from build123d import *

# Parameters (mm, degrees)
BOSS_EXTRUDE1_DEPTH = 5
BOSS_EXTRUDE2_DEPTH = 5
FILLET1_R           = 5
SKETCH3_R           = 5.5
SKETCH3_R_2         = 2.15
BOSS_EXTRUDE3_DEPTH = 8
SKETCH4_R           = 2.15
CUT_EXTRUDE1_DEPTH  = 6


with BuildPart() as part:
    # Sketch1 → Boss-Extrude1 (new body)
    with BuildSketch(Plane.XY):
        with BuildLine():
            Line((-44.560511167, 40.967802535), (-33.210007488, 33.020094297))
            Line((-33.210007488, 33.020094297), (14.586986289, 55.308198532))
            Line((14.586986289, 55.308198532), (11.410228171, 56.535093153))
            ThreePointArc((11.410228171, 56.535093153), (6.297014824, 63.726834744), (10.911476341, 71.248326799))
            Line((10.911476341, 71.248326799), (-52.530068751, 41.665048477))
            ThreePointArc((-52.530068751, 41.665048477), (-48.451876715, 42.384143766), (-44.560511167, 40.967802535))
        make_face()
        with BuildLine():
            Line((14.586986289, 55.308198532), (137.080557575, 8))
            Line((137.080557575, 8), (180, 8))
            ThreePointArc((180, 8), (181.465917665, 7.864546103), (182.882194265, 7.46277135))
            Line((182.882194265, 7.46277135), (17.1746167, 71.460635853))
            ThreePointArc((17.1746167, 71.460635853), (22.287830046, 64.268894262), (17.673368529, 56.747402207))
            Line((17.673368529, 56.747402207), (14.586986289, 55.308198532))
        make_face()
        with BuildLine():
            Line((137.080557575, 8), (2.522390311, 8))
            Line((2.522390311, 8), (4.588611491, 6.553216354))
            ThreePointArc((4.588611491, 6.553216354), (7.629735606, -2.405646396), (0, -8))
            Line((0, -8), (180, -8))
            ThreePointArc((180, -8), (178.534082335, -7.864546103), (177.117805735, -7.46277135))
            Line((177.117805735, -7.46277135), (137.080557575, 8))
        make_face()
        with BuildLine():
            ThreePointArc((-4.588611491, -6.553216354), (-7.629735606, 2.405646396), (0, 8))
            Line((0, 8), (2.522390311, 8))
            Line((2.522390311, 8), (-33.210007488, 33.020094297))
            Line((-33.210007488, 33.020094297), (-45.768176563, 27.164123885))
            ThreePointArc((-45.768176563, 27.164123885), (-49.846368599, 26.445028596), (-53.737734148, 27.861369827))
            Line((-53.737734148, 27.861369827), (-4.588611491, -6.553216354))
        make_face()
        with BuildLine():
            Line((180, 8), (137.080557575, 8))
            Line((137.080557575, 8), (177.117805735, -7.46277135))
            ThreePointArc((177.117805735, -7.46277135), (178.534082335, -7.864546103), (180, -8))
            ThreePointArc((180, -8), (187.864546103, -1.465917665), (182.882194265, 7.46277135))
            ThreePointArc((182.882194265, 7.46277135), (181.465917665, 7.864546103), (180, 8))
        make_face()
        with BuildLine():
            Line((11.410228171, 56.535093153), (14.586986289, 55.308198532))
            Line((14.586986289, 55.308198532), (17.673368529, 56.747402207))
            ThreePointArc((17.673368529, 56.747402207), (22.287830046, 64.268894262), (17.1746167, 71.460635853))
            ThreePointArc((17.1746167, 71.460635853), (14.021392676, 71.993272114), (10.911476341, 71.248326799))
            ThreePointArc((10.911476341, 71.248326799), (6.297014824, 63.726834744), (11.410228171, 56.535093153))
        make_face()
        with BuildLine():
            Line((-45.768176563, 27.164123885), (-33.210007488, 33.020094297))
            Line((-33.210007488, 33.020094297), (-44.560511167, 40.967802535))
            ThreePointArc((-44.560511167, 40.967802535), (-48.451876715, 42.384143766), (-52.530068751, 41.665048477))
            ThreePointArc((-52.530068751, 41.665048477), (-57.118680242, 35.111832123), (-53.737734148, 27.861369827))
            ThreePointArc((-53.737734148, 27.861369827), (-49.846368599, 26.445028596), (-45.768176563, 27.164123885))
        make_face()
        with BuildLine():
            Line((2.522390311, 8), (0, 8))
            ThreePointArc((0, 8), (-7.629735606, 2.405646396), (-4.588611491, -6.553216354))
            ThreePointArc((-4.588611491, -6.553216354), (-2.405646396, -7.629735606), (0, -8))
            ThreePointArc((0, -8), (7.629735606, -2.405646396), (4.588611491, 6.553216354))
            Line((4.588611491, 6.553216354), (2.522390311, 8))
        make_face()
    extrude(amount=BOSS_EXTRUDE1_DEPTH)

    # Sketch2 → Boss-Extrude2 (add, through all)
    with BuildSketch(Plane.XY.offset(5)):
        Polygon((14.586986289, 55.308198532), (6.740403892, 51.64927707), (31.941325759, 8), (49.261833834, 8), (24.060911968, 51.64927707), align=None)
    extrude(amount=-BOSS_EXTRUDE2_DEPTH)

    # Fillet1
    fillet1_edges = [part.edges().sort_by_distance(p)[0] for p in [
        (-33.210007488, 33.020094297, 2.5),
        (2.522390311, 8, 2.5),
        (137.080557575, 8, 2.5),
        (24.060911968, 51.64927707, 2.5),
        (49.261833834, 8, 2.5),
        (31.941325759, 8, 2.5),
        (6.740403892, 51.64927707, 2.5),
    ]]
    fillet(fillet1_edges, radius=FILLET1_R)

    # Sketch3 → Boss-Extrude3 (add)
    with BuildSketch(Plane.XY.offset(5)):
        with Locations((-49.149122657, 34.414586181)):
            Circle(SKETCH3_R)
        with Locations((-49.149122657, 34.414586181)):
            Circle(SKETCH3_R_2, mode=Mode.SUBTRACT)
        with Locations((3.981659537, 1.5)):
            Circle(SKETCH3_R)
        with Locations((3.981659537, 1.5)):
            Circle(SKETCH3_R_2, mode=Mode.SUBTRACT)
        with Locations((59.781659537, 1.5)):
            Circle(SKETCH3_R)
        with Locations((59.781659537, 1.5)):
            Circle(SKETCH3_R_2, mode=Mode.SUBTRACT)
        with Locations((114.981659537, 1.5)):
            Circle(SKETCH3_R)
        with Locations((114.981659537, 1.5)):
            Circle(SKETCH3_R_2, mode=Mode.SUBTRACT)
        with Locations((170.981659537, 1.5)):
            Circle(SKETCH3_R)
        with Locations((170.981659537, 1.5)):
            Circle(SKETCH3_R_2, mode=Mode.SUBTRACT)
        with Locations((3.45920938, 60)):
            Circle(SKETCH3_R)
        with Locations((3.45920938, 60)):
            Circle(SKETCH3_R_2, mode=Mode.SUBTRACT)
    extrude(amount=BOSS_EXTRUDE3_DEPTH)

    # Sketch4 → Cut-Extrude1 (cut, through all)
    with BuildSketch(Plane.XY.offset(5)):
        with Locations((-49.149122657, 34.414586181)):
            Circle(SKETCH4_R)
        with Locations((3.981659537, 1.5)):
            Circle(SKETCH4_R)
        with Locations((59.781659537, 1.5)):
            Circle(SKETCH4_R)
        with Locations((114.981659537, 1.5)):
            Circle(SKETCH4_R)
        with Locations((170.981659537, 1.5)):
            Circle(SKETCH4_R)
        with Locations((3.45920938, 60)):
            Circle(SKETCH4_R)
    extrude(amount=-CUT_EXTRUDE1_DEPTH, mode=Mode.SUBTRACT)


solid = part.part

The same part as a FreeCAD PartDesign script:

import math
import FreeCAD as App
import Part
import Sketcher
Q = App.Units.Quantity


def edges_at(feature, points):
    """Names of the edges that pass closest to the given points."""
    edges = feature.Shape.Edges
    near = lambda p: min(range(len(edges)), key=lambda i: edges[i].distToShape(Part.Vertex(*p))[0])
    return sorted({f"Edge{near(p) + 1}" for p in points})


def add_polygon(sketch, points):
    """Adds a closed chain of lines whose ends are joined by coincident constraints."""
    first, n = sketch.GeometryCount, len(points)
    for a, b in zip(points, points[1:] + points[:1]):
        sketch.addGeometry(Part.LineSegment(App.Vector(*a, 0), App.Vector(*b, 0)), False)
    for i in range(n):
        sketch.addConstraint(Sketcher.Constraint("Coincident", first + i, 2, first + (i + 1) % n, 1))

doc = App.newDocument("Part")
body = doc.addObject("PartDesign::Body", "Body")

sketch1 = body.newObject("Sketcher::SketchObject", "Sketch")
sketch1.AttachmentSupport = (doc.getObject("XY_Plane"), [""])
sketch1.MapMode = "FlatFace"
sketch1.addGeometry(Part.LineSegment(App.Vector(-53.7, 27.9, 0), App.Vector(-4.6, -6.6, 0)), False)
sketch1.addGeometry(Part.ArcOfCircle(Part.Circle(App.Vector(0, 0, 0), App.Vector(0, 0, 1), 8), math.radians(-125), math.radians(-90)), False)
sketch1.addGeometry(Part.LineSegment(App.Vector(0, -8, 0), App.Vector(180, -8, 0)), False)
sketch1.addGeometry(Part.ArcOfCircle(Part.Circle(App.Vector(180, 0, 0), App.Vector(0, 0, 1), 8), math.radians(-90), math.radians(69)), False)
sketch1.addGeometry(Part.LineSegment(App.Vector(182.9, 7.5, 0), App.Vector(17.2, 71.5, 0)), False)
sketch1.addGeometry(Part.ArcOfCircle(Part.Circle(App.Vector(14.3, 64, 0), App.Vector(0, 0, 1), 8), math.radians(69), math.radians(115)), False)
sketch1.addGeometry(Part.LineSegment(App.Vector(10.9, 71.2, 0), App.Vector(-52.5, 41.7, 0)), False)
sketch1.addGeometry(Part.ArcOfCircle(Part.Circle(App.Vector(-49.1, 34.4, 0), App.Vector(0, 0, 1), 8), math.radians(115), math.radians(235)), False)
add_polygon(sketch1, [(137.1, 8), (2.5, 8), (-33.2, 33), (14.6, 55.3)])
sketch1.addConstraint(Sketcher.Constraint("Tangent", 0, 2, 1, 1))
sketch1.addConstraint(Sketcher.Constraint("Tangent", 1, 2, 2, 1))
sketch1.addConstraint(Sketcher.Constraint("Tangent", 2, 2, 3, 1))
sketch1.addConstraint(Sketcher.Constraint("Tangent", 3, 2, 4, 1))
sketch1.addConstraint(Sketcher.Constraint("Tangent", 4, 2, 5, 1))
sketch1.addConstraint(Sketcher.Constraint("Tangent", 5, 2, 6, 1))
sketch1.addConstraint(Sketcher.Constraint("Tangent", 6, 2, 7, 1))
sketch1.addConstraint(Sketcher.Constraint("Tangent", 7, 2, 0, 1))
sketch1.addConstraint(Sketcher.Constraint("Horizontal", 2))
sketch1.addConstraint(Sketcher.Constraint("Horizontal", 8))
sketch1.addConstraint(Sketcher.Constraint("Coincident", 1, 3, -1, 1))
sketch1.addConstraint(Sketcher.Constraint("Equal", 1, 3))
sketch1.addConstraint(Sketcher.Constraint("Equal", 3, 5))
sketch1.addConstraint(Sketcher.Constraint("Equal", 5, 7))
sketch1.addConstraint(Sketcher.Constraint("Parallel", 0, 9))
sketch1.addConstraint(Sketcher.Constraint("Parallel", 6, 10))
sketch1.addConstraint(Sketcher.Constraint("Parallel", 4, 11))
sketch1.addConstraint(Sketcher.Constraint("Radius", 1, Q("8 mm")))
sketch1.addConstraint(Sketcher.Constraint("DistanceX", 2, 1, 2, 2, Q("180 mm")))
sketch1.addConstraint(Sketcher.Constraint("Angle", 0, Q("-35 deg")))
sketch1.addConstraint(Sketcher.Constraint("Angle", 6, Q("-155 deg")))
sketch1.addConstraint(Sketcher.Constraint("Distance", 0, Q("60 mm")))
sketch1.addConstraint(Sketcher.Constraint("Distance", 6, Q("70 mm")))
sketch1.addConstraint(Sketcher.Constraint("DistanceY", -1, 1, 8, 2, Q("8 mm")))
sketch1.addConstraint(Sketcher.Constraint("DistanceX", 0, 2, 8, 2, Q("7.111002 mm")))
sketch1.addConstraint(Sketcher.Constraint("DistanceY", -1, 1, 10, 2, Q("55.308199 mm")))
sketch1.addConstraint(Sketcher.Constraint("DistanceX", 8, 2, 8, 1, Q("134.558167 mm")))
pad1 = body.newObject("PartDesign::Pad", "Pad")
pad1.Profile = sketch1
pad1.Length = 5

sketch2 = body.newObject("Sketcher::SketchObject", "Sketch001")
sketch2.AttachmentSupport = (doc.getObject("XY_Plane"), [""])
sketch2.MapMode = "FlatFace"
sketch2.AttachmentOffset = App.Placement(App.Vector(0, 0, 5), App.Rotation())
add_polygon(sketch2, [(15, 55), (7, 52), (32, 8), (49, 8), (24, 52)])
sketch2.addConstraint(Sketcher.Constraint("Horizontal", 2))
sketch2.addConstraint(Sketcher.Constraint("Parallel", 1, 3))
sketch2.addConstraint(Sketcher.Constraint("Horizontal", 0, 2, 3, 2))
sketch2.addConstraint(Sketcher.Constraint("Angle", 0, Q("-155 deg")))
sketch2.addConstraint(Sketcher.Constraint("Angle", 1, Q("-60 deg")))
sketch2.addConstraint(Sketcher.Constraint("DistanceY", -1, 1, 1, 2, Q("8 mm")))
sketch2.addConstraint(Sketcher.Constraint("DistanceX", 2, 1, 2, 2, Q("17.320508 mm")))
sketch2.addConstraint(Sketcher.Constraint("DistanceY", -1, 1, 4, 2, Q("55.308199 mm")))
sketch2.addConstraint(Sketcher.Constraint("DistanceX", -1, 1, 3, 2, Q("24.060912 mm")))
sketch2.addConstraint(Sketcher.Constraint("DistanceX", 0, 2, 1, 2, Q("25.200922 mm")))
pad2 = body.newObject("PartDesign::Pad", "Pad001")
pad2.Profile = sketch2
pad2.Length = 5
pad2.Reversed = True
doc.recompute()

fillet = body.newObject("PartDesign::Fillet", "Fillet")
fillet.Base = (pad2, edges_at(pad2, [
    (-33.21, 33.02, 2.5),
    (2.522, 8, 2.5),
    (137.081, 8, 2.5),
    (24.061, 51.649, 2.5),
    (49.262, 8, 2.5),
    (31.941, 8, 2.5),
    (6.74, 51.649, 2.5),
]))
fillet.Radius = 5

sketch3 = body.newObject("Sketcher::SketchObject", "Sketch002")
sketch3.AttachmentSupport = (doc.getObject("XY_Plane"), [""])
sketch3.MapMode = "FlatFace"
sketch3.AttachmentOffset = App.Placement(App.Vector(0, 0, 5), App.Rotation())
sketch3.addGeometry(Part.Circle(App.Vector(-49.1, 34.4, 0), App.Vector(0, 0, 1), 5.5), False)
sketch3.addGeometry(Part.Circle(App.Vector(-49.1, 34.4, 0), App.Vector(0, 0, 1), 2.1), False)
sketch3.addGeometry(Part.Circle(App.Vector(4, 1.5, 0), App.Vector(0, 0, 1), 5.5), False)
sketch3.addGeometry(Part.Circle(App.Vector(4, 1.5, 0), App.Vector(0, 0, 1), 2.1), False)
sketch3.addGeometry(Part.Circle(App.Vector(59.8, 1.5, 0), App.Vector(0, 0, 1), 5.5), False)
sketch3.addGeometry(Part.Circle(App.Vector(59.8, 1.5, 0), App.Vector(0, 0, 1), 2.1), False)
sketch3.addGeometry(Part.Circle(App.Vector(115, 1.5, 0), App.Vector(0, 0, 1), 5.5), False)
sketch3.addGeometry(Part.Circle(App.Vector(115, 1.5, 0), App.Vector(0, 0, 1), 2.1), False)
sketch3.addGeometry(Part.Circle(App.Vector(171, 1.5, 0), App.Vector(0, 0, 1), 5.5), False)
sketch3.addGeometry(Part.Circle(App.Vector(171, 1.5, 0), App.Vector(0, 0, 1), 2.1), False)
sketch3.addGeometry(Part.Circle(App.Vector(3.5, 60, 0), App.Vector(0, 0, 1), 5.5), False)
sketch3.addGeometry(Part.Circle(App.Vector(3.5, 60, 0), App.Vector(0, 0, 1), 2.1), False)
sketch3.addConstraint(Sketcher.Constraint("Coincident", 1, 3, 0, 3))
sketch3.addConstraint(Sketcher.Constraint("Coincident", 3, 3, 2, 3))
sketch3.addConstraint(Sketcher.Constraint("Coincident", 5, 3, 4, 3))
sketch3.addConstraint(Sketcher.Constraint("Coincident", 7, 3, 6, 3))
sketch3.addConstraint(Sketcher.Constraint("Coincident", 9, 3, 8, 3))
sketch3.addConstraint(Sketcher.Constraint("Coincident", 11, 3, 10, 3))
sketch3.addConstraint(Sketcher.Constraint("Equal", 0, 2))
sketch3.addConstraint(Sketcher.Constraint("Equal", 1, 3))
sketch3.addConstraint(Sketcher.Constraint("Equal", 2, 4))
sketch3.addConstraint(Sketcher.Constraint("Equal", 3, 5))
sketch3.addConstraint(Sketcher.Constraint("Equal", 4, 6))
sketch3.addConstraint(Sketcher.Constraint("Equal", 5, 7))
sketch3.addConstraint(Sketcher.Constraint("Equal", 6, 8))
sketch3.addConstraint(Sketcher.Constraint("Equal", 7, 9))
sketch3.addConstraint(Sketcher.Constraint("Equal", 8, 10))
sketch3.addConstraint(Sketcher.Constraint("Equal", 9, 11))
sketch3.addConstraint(Sketcher.Constraint("Horizontal", 3, 3, 4, 3))
sketch3.addConstraint(Sketcher.Constraint("Horizontal", 5, 3, 6, 3))
sketch3.addConstraint(Sketcher.Constraint("Horizontal", 7, 3, 8, 3))
sketch3.addConstraint(Sketcher.Constraint("Diameter", 0, Q("11 mm")))
sketch3.addConstraint(Sketcher.Constraint("Diameter", 1, Q("4.3 mm")))
sketch3.addConstraint(Sketcher.Constraint("DistanceY", -1, 1, 10, 3, Q("60 mm")))
sketch3.addConstraint(Sketcher.Constraint("DistanceX", 2, 3, 6, 3, Q("111 mm")))
sketch3.addConstraint(Sketcher.Constraint("DistanceX", 6, 3, 8, 3, Q("56 mm")))
sketch3.addConstraint(Sketcher.Constraint("DistanceY", -1, 1, 2, 3, Q("1.5 mm")))
sketch3.addConstraint(Sketcher.Constraint("DistanceX", 2, 3, 4, 3, Q("55.8 mm")))
sketch3.addConstraint(Sketcher.Constraint("DistanceX", -1, 1, 2, 3, Q("3.98166 mm")))
sketch3.addConstraint(Sketcher.Constraint("DistanceX", -1, 1, 10, 3, Q("3.459209 mm")))
sketch3.addConstraint(Sketcher.Constraint("DistanceX", 0, 3, -1, 1, Q("49.149123 mm")))
sketch3.addConstraint(Sketcher.Constraint("DistanceY", -1, 1, 0, 3, Q("34.414586 mm")))
pad3 = body.newObject("PartDesign::Pad", "Pad002")
pad3.Profile = sketch3
pad3.Length = 8

sketch4 = body.newObject("Sketcher::SketchObject", "Sketch003")
sketch4.AttachmentSupport = (doc.getObject("XY_Plane"), [""])
sketch4.MapMode = "FlatFace"
sketch4.AttachmentOffset = App.Placement(App.Vector(0, 0, 5), App.Rotation())
sketch4.addGeometry(Part.Circle(App.Vector(-49.1, 34.4, 0), App.Vector(0, 0, 1), 2.1), False)
sketch4.addGeometry(Part.Circle(App.Vector(4, 1.5, 0), App.Vector(0, 0, 1), 2.1), False)
sketch4.addGeometry(Part.Circle(App.Vector(59.8, 1.5, 0), App.Vector(0, 0, 1), 2.1), False)
sketch4.addGeometry(Part.Circle(App.Vector(115, 1.5, 0), App.Vector(0, 0, 1), 2.1), False)
sketch4.addGeometry(Part.Circle(App.Vector(171, 1.5, 0), App.Vector(0, 0, 1), 2.1), False)
sketch4.addGeometry(Part.Circle(App.Vector(3.5, 60, 0), App.Vector(0, 0, 1), 2.1), False)
sketch4.addConstraint(Sketcher.Constraint("Equal", 0, 1))
sketch4.addConstraint(Sketcher.Constraint("Equal", 1, 2))
sketch4.addConstraint(Sketcher.Constraint("Equal", 2, 3))
sketch4.addConstraint(Sketcher.Constraint("Equal", 3, 4))
sketch4.addConstraint(Sketcher.Constraint("Equal", 4, 5))
sketch4.addConstraint(Sketcher.Constraint("Horizontal", 1, 3, 2, 3))
sketch4.addConstraint(Sketcher.Constraint("Horizontal", 2, 3, 3, 3))
sketch4.addConstraint(Sketcher.Constraint("Horizontal", 3, 3, 4, 3))
sketch4.addConstraint(Sketcher.Constraint("Diameter", 0, Q("4.3 mm")))
sketch4.addConstraint(Sketcher.Constraint("DistanceY", -1, 1, 5, 3, Q("60 mm")))
sketch4.addConstraint(Sketcher.Constraint("DistanceX", 1, 3, 3, 3, Q("111 mm")))
sketch4.addConstraint(Sketcher.Constraint("DistanceX", 3, 3, 4, 3, Q("56 mm")))
sketch4.addConstraint(Sketcher.Constraint("DistanceY", -1, 1, 1, 3, Q("1.5 mm")))
sketch4.addConstraint(Sketcher.Constraint("DistanceX", 1, 3, 2, 3, Q("55.8 mm")))
sketch4.addConstraint(Sketcher.Constraint("DistanceX", -1, 1, 1, 3, Q("3.98166 mm")))
sketch4.addConstraint(Sketcher.Constraint("DistanceX", -1, 1, 5, 3, Q("3.459209 mm")))
sketch4.addConstraint(Sketcher.Constraint("DistanceX", 0, 3, -1, 1, Q("49.149123 mm")))
sketch4.addConstraint(Sketcher.Constraint("DistanceY", -1, 1, 0, 3, Q("34.414586 mm")))
pocket1 = body.newObject("PartDesign::Pocket", "Pocket")
pocket1.Profile = sketch4
pocket1.Type = "ThroughAll"

doc.recompute()
